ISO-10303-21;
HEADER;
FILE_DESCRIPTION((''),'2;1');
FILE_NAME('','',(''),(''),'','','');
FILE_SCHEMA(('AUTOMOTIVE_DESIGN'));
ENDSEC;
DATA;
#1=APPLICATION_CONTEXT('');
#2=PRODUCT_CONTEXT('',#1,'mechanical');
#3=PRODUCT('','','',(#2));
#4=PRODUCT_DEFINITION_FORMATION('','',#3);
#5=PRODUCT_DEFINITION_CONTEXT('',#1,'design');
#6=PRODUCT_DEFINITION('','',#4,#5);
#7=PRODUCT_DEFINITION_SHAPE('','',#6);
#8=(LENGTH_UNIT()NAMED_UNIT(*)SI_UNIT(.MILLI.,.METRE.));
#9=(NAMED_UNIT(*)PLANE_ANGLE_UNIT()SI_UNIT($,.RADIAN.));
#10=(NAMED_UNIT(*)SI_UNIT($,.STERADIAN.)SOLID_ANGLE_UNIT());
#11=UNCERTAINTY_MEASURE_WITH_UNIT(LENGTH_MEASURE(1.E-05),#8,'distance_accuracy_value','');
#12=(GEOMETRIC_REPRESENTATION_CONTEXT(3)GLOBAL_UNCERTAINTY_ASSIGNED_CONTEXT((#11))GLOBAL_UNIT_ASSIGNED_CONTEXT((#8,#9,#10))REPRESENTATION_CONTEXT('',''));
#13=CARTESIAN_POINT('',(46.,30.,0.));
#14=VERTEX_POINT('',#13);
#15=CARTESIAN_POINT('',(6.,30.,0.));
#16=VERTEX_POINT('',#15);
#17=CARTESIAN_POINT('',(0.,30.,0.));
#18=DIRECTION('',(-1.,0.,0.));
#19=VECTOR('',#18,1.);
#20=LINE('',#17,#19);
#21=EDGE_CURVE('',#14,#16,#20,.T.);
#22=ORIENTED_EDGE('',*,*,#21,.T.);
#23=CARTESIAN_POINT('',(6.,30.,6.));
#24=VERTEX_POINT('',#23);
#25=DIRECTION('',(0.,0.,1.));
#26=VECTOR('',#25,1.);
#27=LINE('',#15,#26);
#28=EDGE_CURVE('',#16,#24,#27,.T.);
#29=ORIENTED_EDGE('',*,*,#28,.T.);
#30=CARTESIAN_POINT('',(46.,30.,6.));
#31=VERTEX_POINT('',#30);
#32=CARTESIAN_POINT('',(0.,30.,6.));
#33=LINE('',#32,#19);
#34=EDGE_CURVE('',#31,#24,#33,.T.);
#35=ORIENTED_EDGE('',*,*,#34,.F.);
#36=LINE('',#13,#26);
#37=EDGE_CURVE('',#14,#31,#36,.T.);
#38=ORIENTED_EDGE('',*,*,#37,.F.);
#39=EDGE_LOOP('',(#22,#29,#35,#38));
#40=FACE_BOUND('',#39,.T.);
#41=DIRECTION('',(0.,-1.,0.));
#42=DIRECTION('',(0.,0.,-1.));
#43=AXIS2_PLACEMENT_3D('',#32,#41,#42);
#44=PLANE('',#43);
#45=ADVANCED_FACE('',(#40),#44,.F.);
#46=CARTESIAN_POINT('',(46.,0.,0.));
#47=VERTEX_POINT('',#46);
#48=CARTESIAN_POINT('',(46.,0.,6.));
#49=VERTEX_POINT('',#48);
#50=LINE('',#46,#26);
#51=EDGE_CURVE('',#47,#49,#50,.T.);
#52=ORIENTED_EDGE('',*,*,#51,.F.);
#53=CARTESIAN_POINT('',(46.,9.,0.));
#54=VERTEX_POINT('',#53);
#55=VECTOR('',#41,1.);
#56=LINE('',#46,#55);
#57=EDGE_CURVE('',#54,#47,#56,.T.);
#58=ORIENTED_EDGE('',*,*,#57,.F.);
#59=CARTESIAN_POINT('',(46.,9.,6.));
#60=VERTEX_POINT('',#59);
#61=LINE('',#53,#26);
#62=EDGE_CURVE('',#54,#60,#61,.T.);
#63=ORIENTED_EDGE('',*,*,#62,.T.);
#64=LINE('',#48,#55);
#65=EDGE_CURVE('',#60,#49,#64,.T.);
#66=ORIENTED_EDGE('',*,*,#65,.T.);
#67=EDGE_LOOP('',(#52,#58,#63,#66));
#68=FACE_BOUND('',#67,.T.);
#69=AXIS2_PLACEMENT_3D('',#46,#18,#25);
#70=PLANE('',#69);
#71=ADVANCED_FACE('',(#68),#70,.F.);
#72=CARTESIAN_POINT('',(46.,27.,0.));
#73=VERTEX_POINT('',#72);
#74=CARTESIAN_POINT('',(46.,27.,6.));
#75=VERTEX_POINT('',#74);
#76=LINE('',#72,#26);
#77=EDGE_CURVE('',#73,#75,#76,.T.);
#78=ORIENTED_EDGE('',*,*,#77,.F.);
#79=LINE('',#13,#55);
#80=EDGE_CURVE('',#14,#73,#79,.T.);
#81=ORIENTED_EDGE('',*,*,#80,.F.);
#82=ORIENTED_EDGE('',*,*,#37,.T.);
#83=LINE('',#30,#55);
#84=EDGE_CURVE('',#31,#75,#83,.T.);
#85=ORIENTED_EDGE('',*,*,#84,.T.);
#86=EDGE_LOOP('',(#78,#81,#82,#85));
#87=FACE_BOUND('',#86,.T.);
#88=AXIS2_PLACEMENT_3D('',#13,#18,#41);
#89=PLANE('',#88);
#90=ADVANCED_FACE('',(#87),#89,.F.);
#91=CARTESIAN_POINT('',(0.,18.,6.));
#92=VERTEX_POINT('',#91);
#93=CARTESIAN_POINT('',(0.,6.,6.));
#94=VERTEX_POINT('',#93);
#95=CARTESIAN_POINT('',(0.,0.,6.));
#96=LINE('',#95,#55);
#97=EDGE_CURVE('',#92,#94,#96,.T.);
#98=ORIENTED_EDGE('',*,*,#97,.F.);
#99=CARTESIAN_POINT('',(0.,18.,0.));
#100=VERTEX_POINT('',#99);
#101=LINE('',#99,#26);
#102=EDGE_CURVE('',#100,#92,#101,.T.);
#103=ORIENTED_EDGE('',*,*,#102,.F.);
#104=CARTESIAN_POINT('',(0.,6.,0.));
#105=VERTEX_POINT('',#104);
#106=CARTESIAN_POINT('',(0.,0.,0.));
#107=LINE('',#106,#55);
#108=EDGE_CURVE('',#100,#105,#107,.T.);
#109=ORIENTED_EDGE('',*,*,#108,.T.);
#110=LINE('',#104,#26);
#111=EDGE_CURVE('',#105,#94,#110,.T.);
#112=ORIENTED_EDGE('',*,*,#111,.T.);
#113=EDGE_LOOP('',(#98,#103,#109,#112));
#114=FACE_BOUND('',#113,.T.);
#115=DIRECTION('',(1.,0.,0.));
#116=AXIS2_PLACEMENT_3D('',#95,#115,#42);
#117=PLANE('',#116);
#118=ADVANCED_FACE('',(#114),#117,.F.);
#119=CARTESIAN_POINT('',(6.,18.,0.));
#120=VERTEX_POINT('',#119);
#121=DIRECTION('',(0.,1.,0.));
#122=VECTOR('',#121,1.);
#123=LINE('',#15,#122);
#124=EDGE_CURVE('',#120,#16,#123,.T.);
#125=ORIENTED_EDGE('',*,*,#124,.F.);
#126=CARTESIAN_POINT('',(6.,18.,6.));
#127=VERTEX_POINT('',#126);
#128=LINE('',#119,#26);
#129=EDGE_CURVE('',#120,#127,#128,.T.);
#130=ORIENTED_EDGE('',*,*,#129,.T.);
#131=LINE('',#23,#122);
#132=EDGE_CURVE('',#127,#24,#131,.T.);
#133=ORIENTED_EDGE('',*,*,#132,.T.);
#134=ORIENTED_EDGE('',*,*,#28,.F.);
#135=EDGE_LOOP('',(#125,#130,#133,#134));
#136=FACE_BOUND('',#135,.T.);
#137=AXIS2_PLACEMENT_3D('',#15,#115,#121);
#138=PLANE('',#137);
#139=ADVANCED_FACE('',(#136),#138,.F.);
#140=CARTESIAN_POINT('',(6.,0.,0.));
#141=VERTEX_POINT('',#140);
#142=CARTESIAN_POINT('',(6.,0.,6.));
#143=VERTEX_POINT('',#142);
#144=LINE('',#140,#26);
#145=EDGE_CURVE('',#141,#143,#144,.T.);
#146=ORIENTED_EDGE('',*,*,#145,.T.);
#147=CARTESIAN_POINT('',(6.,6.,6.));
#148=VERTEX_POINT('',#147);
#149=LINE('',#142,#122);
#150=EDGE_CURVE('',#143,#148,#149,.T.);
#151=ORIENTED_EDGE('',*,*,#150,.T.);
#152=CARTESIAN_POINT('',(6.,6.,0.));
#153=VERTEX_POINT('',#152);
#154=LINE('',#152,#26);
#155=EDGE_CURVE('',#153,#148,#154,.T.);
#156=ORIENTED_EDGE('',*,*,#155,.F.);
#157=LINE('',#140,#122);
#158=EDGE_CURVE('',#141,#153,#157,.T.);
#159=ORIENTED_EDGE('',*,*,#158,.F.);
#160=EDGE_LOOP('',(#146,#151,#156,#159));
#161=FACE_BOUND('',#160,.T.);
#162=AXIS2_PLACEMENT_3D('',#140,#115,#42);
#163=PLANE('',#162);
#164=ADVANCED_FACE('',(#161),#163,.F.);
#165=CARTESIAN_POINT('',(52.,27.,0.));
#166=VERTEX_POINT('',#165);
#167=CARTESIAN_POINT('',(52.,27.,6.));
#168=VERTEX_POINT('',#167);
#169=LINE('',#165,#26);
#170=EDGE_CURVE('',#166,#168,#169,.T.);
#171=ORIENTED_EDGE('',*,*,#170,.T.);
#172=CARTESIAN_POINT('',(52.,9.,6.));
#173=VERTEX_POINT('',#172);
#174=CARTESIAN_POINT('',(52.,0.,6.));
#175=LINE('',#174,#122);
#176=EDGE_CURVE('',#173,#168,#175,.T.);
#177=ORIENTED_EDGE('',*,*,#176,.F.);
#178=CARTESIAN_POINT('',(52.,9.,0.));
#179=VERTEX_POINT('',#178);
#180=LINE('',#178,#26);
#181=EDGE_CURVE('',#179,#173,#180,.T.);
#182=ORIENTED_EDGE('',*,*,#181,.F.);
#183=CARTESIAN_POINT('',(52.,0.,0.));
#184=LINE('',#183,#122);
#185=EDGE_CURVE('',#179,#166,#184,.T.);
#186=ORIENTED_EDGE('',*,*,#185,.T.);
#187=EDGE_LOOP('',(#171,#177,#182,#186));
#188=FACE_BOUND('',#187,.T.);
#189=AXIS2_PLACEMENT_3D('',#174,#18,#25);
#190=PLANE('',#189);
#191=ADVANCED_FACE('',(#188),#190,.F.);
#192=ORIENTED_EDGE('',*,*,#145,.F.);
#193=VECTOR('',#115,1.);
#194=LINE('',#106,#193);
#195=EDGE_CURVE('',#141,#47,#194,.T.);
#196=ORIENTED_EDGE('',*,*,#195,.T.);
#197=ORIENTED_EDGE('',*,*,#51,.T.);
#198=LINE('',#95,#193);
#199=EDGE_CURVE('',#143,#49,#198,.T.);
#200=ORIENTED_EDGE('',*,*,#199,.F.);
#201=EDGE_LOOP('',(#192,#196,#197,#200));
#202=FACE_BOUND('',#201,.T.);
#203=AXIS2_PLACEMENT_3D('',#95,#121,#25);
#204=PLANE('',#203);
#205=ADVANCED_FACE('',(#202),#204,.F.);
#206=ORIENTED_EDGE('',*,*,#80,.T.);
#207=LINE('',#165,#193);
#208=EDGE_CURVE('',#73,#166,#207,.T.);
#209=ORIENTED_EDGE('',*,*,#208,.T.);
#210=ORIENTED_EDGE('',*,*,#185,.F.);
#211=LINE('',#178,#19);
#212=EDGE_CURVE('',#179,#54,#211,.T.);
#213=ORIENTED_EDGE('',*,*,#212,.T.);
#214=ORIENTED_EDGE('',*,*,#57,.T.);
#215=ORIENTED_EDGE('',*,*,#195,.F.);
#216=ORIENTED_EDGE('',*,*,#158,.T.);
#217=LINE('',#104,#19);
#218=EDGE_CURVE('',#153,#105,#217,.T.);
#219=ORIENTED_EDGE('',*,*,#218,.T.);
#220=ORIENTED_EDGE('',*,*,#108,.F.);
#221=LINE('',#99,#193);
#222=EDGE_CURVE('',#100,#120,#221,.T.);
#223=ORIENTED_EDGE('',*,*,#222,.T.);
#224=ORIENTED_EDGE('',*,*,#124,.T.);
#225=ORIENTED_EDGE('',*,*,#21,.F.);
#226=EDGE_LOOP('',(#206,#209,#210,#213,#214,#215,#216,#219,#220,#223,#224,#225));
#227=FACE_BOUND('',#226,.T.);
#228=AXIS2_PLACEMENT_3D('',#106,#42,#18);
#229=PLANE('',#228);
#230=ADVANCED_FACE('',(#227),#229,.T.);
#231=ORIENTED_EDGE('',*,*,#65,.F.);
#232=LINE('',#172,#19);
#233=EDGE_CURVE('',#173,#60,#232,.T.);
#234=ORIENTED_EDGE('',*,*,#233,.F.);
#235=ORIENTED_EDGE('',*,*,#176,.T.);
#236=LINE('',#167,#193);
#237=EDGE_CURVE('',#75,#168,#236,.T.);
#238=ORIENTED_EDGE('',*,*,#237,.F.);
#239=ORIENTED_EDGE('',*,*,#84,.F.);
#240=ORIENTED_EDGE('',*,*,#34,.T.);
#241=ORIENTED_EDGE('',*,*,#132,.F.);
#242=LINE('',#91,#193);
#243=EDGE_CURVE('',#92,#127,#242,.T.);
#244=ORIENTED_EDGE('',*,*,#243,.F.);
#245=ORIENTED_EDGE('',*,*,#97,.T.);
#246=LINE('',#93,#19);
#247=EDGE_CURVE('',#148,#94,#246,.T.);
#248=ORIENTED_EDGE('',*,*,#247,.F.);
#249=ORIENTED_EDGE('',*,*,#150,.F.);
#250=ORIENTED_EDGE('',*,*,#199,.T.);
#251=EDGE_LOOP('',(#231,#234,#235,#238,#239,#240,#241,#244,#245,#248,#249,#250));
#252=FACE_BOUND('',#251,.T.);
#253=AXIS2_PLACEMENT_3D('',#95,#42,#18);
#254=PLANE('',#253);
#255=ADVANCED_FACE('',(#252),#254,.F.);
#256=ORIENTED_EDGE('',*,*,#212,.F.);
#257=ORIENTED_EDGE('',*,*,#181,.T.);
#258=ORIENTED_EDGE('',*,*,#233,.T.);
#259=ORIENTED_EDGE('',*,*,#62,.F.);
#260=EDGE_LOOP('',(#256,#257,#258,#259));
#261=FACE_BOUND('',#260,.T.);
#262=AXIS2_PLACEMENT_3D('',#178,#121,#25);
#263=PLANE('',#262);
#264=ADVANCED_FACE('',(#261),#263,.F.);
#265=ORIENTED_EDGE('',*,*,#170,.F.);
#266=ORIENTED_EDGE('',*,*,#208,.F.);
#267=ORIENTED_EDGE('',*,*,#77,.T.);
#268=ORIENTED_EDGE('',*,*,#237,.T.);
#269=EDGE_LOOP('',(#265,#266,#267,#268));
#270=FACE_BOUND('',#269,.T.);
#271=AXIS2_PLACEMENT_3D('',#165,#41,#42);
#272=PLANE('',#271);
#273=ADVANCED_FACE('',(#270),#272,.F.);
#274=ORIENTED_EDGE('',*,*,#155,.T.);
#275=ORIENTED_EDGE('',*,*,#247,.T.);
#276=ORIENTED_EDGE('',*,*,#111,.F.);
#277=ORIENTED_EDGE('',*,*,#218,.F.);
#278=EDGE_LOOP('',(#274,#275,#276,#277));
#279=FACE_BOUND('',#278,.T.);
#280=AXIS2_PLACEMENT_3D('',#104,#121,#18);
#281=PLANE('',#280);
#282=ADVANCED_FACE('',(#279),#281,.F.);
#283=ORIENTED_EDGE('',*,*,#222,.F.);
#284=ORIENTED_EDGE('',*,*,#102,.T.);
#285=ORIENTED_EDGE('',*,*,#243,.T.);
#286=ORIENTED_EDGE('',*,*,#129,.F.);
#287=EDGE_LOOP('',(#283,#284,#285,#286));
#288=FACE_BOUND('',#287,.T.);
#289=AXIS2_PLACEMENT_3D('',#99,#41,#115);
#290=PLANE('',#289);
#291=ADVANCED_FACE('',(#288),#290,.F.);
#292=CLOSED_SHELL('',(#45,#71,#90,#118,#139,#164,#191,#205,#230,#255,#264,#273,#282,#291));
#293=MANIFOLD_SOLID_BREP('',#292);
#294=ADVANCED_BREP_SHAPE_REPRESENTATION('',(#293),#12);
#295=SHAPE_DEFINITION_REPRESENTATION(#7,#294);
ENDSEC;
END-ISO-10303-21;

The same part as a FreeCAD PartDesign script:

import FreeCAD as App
import Part
import Sketcher

V = App.Vector


def add_polygon(sketch, points):
    """Adds a closed chain of lines whose ends are joined by coincident constraints."""
    first, n = sketch.GeometryCount, len(points)
    for a, b in zip(points, points[1:] + points[:1]):
        sketch.addGeometry(Part.LineSegment(App.Vector(*a, 0), App.Vector(*b, 0)), False)
    for i in range(n):
        sketch.addConstraint(Sketcher.Constraint("Coincident", first + i, 2, first + (i + 1) % n, 1))

doc = App.newDocument("Part")
body = doc.addObject("PartDesign::Body", "Body")

sketch1 = body.newObject("Sketcher::SketchObject", "Sketch")
sketch1.AttachmentSupport = (doc.getObject("XY_Plane"), [""])
sketch1.MapMode = "FlatFace"
add_polygon(sketch1, [(0, 30), (0, 0), (52, 0), (52, 30)])
sketch1.addConstraint([
    Sketcher.Constraint("Vertical", 0),
    Sketcher.Constraint("Horizontal", 1),
    Sketcher.Constraint("Vertical", 2),
    Sketcher.Constraint("Horizontal", 3),
    Sketcher.Constraint("Coincident", 0, 2, -1, 1),
    Sketcher.Constraint("DistanceX", 1, 1, 1, 2, 52.0),
    Sketcher.Constraint("DistanceY", 0, 2, 0, 1, 30.0),
])
pad1 = body.newObject("PartDesign::Pad", "Pad")
pad1.Profile = sketch1
pad1.Length = 6

sketch2 = body.newObject("Sketcher::SketchObject", "Sketch001")
sketch2.AttachmentSupport = (doc.getObject("XY_Plane"), [""])
sketch2.MapMode = "FlatFace"
sketch2.AttachmentOffset = App.Placement(V(0, 0, 6), App.Rotation())
add_polygon(sketch2, [(46, 30), (46, 27), (52, 27), (52, 30)])
add_polygon(sketch2, [(46, 9), (46, 0), (52, 0), (52, 9)])
add_polygon(sketch2, [(0, 30), (0, 18), (6, 18), (6, 30)])
add_polygon(sketch2, [(0, 6), (0, 0), (6, 0), (6, 6)])
sketch2.addConstraint([
    Sketcher.Constraint("Vertical", 0),
    Sketcher.Constraint("Horizontal", 1),
    Sketcher.Constraint("Vertical", 2),
    Sketcher.Constraint("Horizontal", 3),
    Sketcher.Constraint("Vertical", 4),
    Sketcher.Constraint("Horizontal", 5),
    Sketcher.Constraint("Vertical", 6),
    Sketcher.Constraint("Horizontal", 7),
    Sketcher.Constraint("Vertical", 8),
    Sketcher.Constraint("Horizontal", 9),
    Sketcher.Constraint("Vertical", 10),
    Sketcher.Constraint("Horizontal", 11),
    Sketcher.Constraint("Vertical", 12),
    Sketcher.Constraint("Horizontal", 13),
    Sketcher.Constraint("Vertical", 14),
    Sketcher.Constraint("Horizontal", 15),
    Sketcher.Constraint("Coincident", 12, 2, -1, 1),
    Sketcher.Constraint("PointOnObject", 4, 2, -1),
    Sketcher.Constraint("PointOnObject", 8, 2, -2),
    Sketcher.Constraint("Horizontal", 3, 2, 10, 2),
    Sketcher.Constraint("Vertical", 3, 2, 4, 2),
    Sketcher.Constraint("Vertical", 2, 2, 5, 2),
    Sketcher.Constraint("Vertical", 10, 2, 13, 2),
    Sketcher.Constraint("Equal", 7, 9),
    Sketcher.Constraint("Equal", 15, 12),
    Sketcher.Constraint("DistanceX", 1, 1, 1, 2, 6.0),
    Sketcher.Constraint("DistanceY", 0, 2, 0, 1, 3.0),
    Sketcher.Constraint("DistanceY", 4, 2, 4, 1, 9.0),
    Sketcher.Constraint("DistanceY", 8, 2, 8, 1, 12.0),
    Sketcher.Constraint("DistanceX", -1, 1, 0, 2, 46.0),
    Sketcher.Constraint("DistanceY", -1, 1, 0, 2, 27.0),
])
pocket1 = body.newObject("PartDesign::Pocket", "Pocket")
pocket1.Profile = sketch2
pocket1.Type = "ThroughAll"

doc.recompute()
